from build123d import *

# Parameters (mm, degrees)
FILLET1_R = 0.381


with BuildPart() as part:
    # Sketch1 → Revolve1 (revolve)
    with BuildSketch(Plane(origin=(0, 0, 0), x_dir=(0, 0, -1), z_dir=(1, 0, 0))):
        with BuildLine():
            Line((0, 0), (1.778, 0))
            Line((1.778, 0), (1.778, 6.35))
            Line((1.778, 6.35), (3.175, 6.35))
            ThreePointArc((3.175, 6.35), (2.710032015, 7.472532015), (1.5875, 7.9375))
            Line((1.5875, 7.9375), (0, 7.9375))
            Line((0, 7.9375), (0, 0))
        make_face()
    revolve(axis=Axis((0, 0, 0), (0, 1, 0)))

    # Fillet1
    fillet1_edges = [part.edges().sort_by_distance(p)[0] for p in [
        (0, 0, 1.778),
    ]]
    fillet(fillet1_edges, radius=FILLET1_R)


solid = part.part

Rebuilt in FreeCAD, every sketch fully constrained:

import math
import FreeCAD as App
import Part
import Sketcher
from FreeCAD import Vector
Q = App.Units.Quantity


def edges_at(feature, points):
    """Names of the edges that pass closest to the given points."""
    edges = feature.Shape.Edges
    near = lambda p: min(range(len(edges)), key=lambda i: edges[i].distToShape(Part.Vertex(*p))[0])
    return sorted({f"Edge{near(p) + 1}" for p in points})

doc = App.newDocument("Part")
params = doc.addObject("Spreadsheet::Sheet", "Params")
for row, (alias, value) in enumerate([
    ("sketch1_radius", "0.0625 in"),
    ("sketch1_width", "0.25 in"),
    ("sketch1_height", "0.07 in"),
    ("sketch1_height2", "0.055 in"),
    ("revolution_angle", "360 deg"),
    ("fillet_radius", "0.015 in"),
], start=1):
    params.set(f"A{row}", alias)
    params.set(f"B{row}", "=" + value)
    params.setAlias(f"B{row}", alias)

body = doc.addObject("PartDesign::Body", "Body")

# Sketch on YZ plane
sketch1 = body.newObject("Sketcher::SketchObject", "Sketch")
sketch1.AttachmentSupport = (doc.getObject("YZ_Plane"), [""])
sketch1.MapMode = "FlatFace"
sketch1.addGeometry([
    Part.LineSegment(Vector(0, 0, 0), Vector(0, -1.8, 0)),  # 0
    Part.LineSegment(Vector(0, -1.8, 0), Vector(6.3, -1.8, 0)),  # 1
    Part.LineSegment(Vector(6.3, -1.8, 0), Vector(6.3, -3.2, 0)),  # 2
    Part.ArcOfCircle(Part.Circle(Vector(6.3, -1.6, 0), Vector(0, 0, 1), 1.6), math.radians(-90), math.radians(0)),  # 3
    Part.LineSegment(Vector(7.9, -1.6, 0), Vector(7.9, 0, 0)),  # 4
    Part.LineSegment(Vector(7.9, 0, 0), Vector(0, 0, 0)),  # 5
], False)
sketch1.addConstraint([
    Sketcher.Constraint("Coincident", 0, 2, 1, 1),
    Sketcher.Constraint("Coincident", 1, 2, 2, 1),
    Sketcher.Constraint("Coincident", 2, 2, 3, 1),
    Sketcher.Constraint("Tangent", 3, 2, 4, 1),
    Sketcher.Constraint("Coincident", 4, 2, 5, 1),
    Sketcher.Constraint("Coincident", 5, 2, 0, 1),
    Sketcher.Constraint("Vertical", 0),
    Sketcher.Constraint("Horizontal", 1),
    Sketcher.Constraint("Vertical", 2),
    Sketcher.Constraint("Vertical", 4),
    Sketcher.Constraint("Horizontal", 5),
    Sketcher.Constraint("Coincident", 5, 2, -1, 1),
    Sketcher.Constraint("Vertical", 3, 3, 1, 2),
    Sketcher.Constraint("Radius", 3, Q("0.0625 in")),
    Sketcher.Constraint("DistanceX", 1, 1, 1, 2, Q("0.25 in")),
    Sketcher.Constraint("DistanceY", 0, 2, 0, 1, Q("0.07 in")),
    Sketcher.Constraint("DistanceY", 2, 2, 2, 1, Q("0.055 in")),
])
sketch1.setExpression("Constraints[13]", "Params.sketch1_radius")
sketch1.setExpression("Constraints[14]", "Params.sketch1_width")
sketch1.setExpression("Constraints[15]", "Params.sketch1_height")
sketch1.setExpression("Constraints[16]", "Params.sketch1_height2")
revolution = body.newObject("PartDesign::Revolution", "Revolution")
revolution.Profile = sketch1
revolution.ReferenceAxis = (sketch1, ["H_Axis"])
revolution.setExpression("Angle", "Params.revolution_angle")
doc.recompute()

fillet = body.newObject("PartDesign::Fillet", "Fillet")
fillet.Base = (revolution, edges_at(revolution, [(0, 0, 1.778)]))
fillet.setExpression("Radius", "Params.fillet_radius")

doc.recompute()
